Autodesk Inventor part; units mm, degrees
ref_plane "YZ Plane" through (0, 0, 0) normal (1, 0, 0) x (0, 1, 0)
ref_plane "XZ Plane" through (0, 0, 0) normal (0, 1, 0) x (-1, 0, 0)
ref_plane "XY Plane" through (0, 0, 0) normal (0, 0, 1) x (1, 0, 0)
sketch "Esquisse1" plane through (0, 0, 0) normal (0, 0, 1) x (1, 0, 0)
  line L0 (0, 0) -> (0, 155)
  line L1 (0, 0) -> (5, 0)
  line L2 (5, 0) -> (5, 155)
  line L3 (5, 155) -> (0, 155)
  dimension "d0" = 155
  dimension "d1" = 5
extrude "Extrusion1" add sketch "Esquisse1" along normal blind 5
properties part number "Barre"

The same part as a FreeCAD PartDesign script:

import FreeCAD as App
import Part
import Sketcher
from FreeCAD import Vector


def add_polygon(sketch, points):
    """Adds a closed chain of lines whose ends are joined by coincident constraints."""
    first, n = sketch.GeometryCount, len(points)
    for a, b in zip(points, points[1:] + points[:1]):
        sketch.addGeometry(Part.LineSegment(App.Vector(*a, 0), App.Vector(*b, 0)), False)
    for i in range(n):
        sketch.addConstraint(Sketcher.Constraint("Coincident", first + i, 2, first + (i + 1) % n, 1))

doc = App.newDocument("Part")
params = doc.addObject("Spreadsheet::Sheet", "Params")
for row, (alias, value) in enumerate([
    ("sketch1_width", "5 mm"),
    ("sketch1_height", "155 mm"),
    ("pad1_length", "5 mm"),
], start=1):
    params.set(f"A{row}", alias)
    params.set(f"B{row}", "=" + value)
    params.setAlias(f"B{row}", alias)

body = doc.addObject("PartDesign::Body", "Body")

sketch1 = body.newObject("Sketcher::SketchObject", "Sketch")
sketch1.AttachmentSupport = (doc.getObject("XY_Plane"), [""])
sketch1.MapMode = "FlatFace"
add_polygon(sketch1, [(0, 155), (0, 0), (5, 0), (5, 155)])
sketch1.addConstraint(Sketcher.Constraint("Vertical", 0))
sketch1.addConstraint(Sketcher.Constraint("Horizontal", 1))
sketch1.addConstraint(Sketcher.Constraint("Vertical", 2))
sketch1.addConstraint(Sketcher.Constraint("Horizontal", 3))
sketch1.addConstraint(Sketcher.Constraint("Coincident", 0, 2, -1, 1))
sketch1.addConstraint(Sketcher.Constraint("DistanceX", 1, 1, 1, 2, 5.0))
sketch1.addConstraint(Sketcher.Constraint("DistanceY", 0, 2, 0, 1, 155.0))
sketch1.setExpression("Constraints[9]", "Params.sketch1_width")
sketch1.setExpression("Constraints[10]", "Params.sketch1_height")
pad1 = body.newObject("PartDesign::Pad", "Pad")
pad1.Profile = sketch1
pad1.setExpression("Length", "Params.pad1_length")

doc.recompute()
